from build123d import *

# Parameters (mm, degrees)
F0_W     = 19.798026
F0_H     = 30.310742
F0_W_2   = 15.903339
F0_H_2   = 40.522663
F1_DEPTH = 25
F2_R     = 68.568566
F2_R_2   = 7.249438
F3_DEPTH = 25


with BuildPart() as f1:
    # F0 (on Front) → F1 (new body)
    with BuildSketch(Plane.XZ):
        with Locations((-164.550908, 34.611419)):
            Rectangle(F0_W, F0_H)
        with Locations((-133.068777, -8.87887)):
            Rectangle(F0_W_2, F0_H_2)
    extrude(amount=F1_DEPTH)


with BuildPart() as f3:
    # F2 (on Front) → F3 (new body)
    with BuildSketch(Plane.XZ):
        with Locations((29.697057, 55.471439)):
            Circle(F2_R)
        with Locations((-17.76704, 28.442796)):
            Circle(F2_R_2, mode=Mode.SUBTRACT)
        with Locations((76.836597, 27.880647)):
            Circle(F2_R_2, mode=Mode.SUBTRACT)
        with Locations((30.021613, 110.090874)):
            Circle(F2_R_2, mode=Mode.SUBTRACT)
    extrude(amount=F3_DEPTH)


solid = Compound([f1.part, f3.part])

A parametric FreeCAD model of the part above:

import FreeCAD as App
import Part
import Sketcher
from FreeCAD import Vector
Q = App.Units.Quantity


def add_polygon(sketch, points):
    """Adds a closed chain of lines whose ends are joined by coincident constraints."""
    first, n = sketch.GeometryCount, len(points)
    for a, b in zip(points, points[1:] + points[:1]):
        sketch.addGeometry(Part.LineSegment(App.Vector(*a, 0), App.Vector(*b, 0)), False)
    for i in range(n):
        sketch.addConstraint(Sketcher.Constraint("Coincident", first + i, 2, first + (i + 1) % n, 1))

doc = App.newDocument("Part")
body = doc.addObject("PartDesign::Body", "Body")
body.AllowCompound = True

# Sketch on XZ plane
sketch1 = body.newObject("Sketcher::SketchObject", "Sketch")
sketch1.AttachmentSupport = (doc.getObject("XZ_Plane"), [""])
sketch1.MapMode = "FlatFace"
add_polygon(sketch1, [(-174, 50), (-174, 19), (-155, 19), (-155, 50)])  # lines 0-3
add_polygon(sketch1, [(-141, 11), (-141, -29), (-125, -29), (-125, 11)])  # lines 4-7
sketch1.addConstraint(Sketcher.Constraint("Vertical", 0))
sketch1.addConstraint(Sketcher.Constraint("Horizontal", 1))
sketch1.addConstraint(Sketcher.Constraint("Vertical", 2))
sketch1.addConstraint(Sketcher.Constraint("Horizontal", 3))
sketch1.addConstraint(Sketcher.Constraint("Vertical", 4))
sketch1.addConstraint(Sketcher.Constraint("Horizontal", 5))
sketch1.addConstraint(Sketcher.Constraint("Vertical", 6))
sketch1.addConstraint(Sketcher.Constraint("Horizontal", 7))
sketch1.addConstraint(Sketcher.Constraint("DistanceX", 5, 1, 5, 2, Q("15.903339 mm")))
sketch1.addConstraint(Sketcher.Constraint("DistanceY", 4, 2, -1, 1, Q("29.140201 mm")))
sketch1.addConstraint(Sketcher.Constraint("DistanceX", 1, 1, 1, 2, Q("19.798026 mm")))
sketch1.addConstraint(Sketcher.Constraint("DistanceY", 0, 2, 0, 1, Q("30.310742 mm")))
sketch1.addConstraint(Sketcher.Constraint("DistanceY", 4, 2, 4, 1, Q("40.522663 mm")))
sketch1.addConstraint(Sketcher.Constraint("DistanceX", 0, 2, -1, 1, Q("174.449921 mm")))
sketch1.addConstraint(Sketcher.Constraint("DistanceY", -1, 1, 2, 2, Q("49.76679 mm")))
sketch1.addConstraint(Sketcher.Constraint("DistanceX", 1, 2, 4, 2, Q("13.631449 mm")))
pad1 = body.newObject("PartDesign::Pad", "Pad")
pad1.Profile = sketch1
pad1.Length = 25
body2 = doc.addObject("PartDesign::Body", "Body001")

# Sketch on XZ plane
sketch2 = body2.newObject("Sketcher::SketchObject", "Sketch001")
sketch2.AttachmentSupport = (doc.getObject("XZ_Plane001"), [""])
sketch2.MapMode = "FlatFace"
sketch2.addGeometry(Part.Circle(Vector(30, 55, 0), Vector(0, 0, 1), 69), False)
sketch2.addGeometry(Part.Circle(Vector(-18, 28, 0), Vector(0, 0, 1), 7), False)
sketch2.addGeometry(Part.Circle(Vector(77, 28, 0), Vector(0, 0, 1), 7), False)
sketch2.addGeometry(Part.Circle(Vector(30, 110, 0), Vector(0, 0, 1), 7), False)
sketch2.addConstraint(Sketcher.Constraint("Equal", 1, 2))
sketch2.addConstraint(Sketcher.Constraint("Equal", 2, 3))
sketch2.addConstraint(Sketcher.Constraint("Diameter", 0, Q("137.137132 mm")))
sketch2.addConstraint(Sketcher.Constraint("Diameter", 1, Q("14.498876 mm")))
sketch2.addConstraint(Sketcher.Constraint("DistanceY", -1, 1, 0, 3, Q("55.471439 mm")))
sketch2.addConstraint(Sketcher.Constraint("DistanceX", 1, 3, -1, 1, Q("17.76704 mm")))
sketch2.addConstraint(Sketcher.Constraint("DistanceX", 0, 3, 2, 3, Q("47.13954 mm")))
sketch2.addConstraint(Sketcher.Constraint("DistanceY", 2, 3, 0, 3, Q("27.590792 mm")))
sketch2.addConstraint(Sketcher.Constraint("DistanceY", 2, 3, 1, 3, Q("0.562149 mm")))
sketch2.addConstraint(Sketcher.Constraint("DistanceY", 1, 3, 3, 3, Q("81.648078 mm")))
sketch2.addConstraint(Sketcher.Constraint("DistanceX", -1, 1, 0, 3, Q("29.697057 mm")))
sketch2.addConstraint(Sketcher.Constraint("DistanceX", -1, 1, 3, 3, Q("30.021613 mm")))
pad2 = body2.newObject("PartDesign::Pad", "Pad001")
pad2.Profile = sketch2
pad2.Length = 25

doc.recompute()
